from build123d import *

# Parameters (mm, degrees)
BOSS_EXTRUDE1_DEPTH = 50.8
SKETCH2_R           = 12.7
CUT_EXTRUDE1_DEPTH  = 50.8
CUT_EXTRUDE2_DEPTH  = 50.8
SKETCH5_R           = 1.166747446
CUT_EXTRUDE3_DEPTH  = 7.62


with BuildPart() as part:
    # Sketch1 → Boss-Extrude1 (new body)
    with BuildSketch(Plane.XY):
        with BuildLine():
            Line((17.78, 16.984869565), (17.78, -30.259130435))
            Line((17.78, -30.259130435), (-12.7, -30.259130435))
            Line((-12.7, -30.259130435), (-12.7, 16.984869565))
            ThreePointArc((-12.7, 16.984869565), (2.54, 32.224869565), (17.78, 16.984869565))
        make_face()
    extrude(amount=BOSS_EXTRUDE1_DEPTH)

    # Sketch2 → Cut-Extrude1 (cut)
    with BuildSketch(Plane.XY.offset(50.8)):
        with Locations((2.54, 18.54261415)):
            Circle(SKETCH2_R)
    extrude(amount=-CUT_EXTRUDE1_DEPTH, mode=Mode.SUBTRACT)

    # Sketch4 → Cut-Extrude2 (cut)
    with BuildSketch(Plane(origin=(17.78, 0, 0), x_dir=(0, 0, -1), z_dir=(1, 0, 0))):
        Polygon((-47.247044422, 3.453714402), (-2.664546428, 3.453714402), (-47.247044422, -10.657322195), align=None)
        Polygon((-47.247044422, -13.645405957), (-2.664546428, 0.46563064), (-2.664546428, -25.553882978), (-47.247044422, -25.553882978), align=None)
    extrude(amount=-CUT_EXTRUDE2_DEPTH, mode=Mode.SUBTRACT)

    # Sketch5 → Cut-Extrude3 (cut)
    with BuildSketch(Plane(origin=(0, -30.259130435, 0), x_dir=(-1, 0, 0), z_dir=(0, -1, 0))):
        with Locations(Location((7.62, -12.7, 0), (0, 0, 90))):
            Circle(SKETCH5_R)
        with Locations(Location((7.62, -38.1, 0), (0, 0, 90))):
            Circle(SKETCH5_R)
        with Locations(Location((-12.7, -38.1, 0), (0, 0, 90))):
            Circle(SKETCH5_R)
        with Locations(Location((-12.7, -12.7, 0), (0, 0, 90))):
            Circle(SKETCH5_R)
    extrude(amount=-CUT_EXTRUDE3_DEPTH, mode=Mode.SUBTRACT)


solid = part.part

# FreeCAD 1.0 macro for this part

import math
import FreeCAD as App
import Part
import Sketcher
Q = App.Units.Quantity


def add_polygon(sketch, points):
    """Adds a closed chain of lines whose ends are joined by coincident constraints."""
    first, n = sketch.GeometryCount, len(points)
    for a, b in zip(points, points[1:] + points[:1]):
        sketch.addGeometry(Part.LineSegment(App.Vector(*a, 0), App.Vector(*b, 0)), False)
    for i in range(n):
        sketch.addConstraint(Sketcher.Constraint("Coincident", first + i, 2, first + (i + 1) % n, 1))

doc = App.newDocument("Part")
body = doc.addObject("PartDesign::Body", "Body")

# Sketch on XY plane
sketch1 = body.newObject("Sketcher::SketchObject", "Sketch")
sketch1.AttachmentSupport = (doc.getObject("XY_Plane"), [""])
sketch1.MapMode = "FlatFace"
sketch1.addGeometry(Part.LineSegment(App.Vector(18, -30, 0), App.Vector(18, 17, 0)), False)
sketch1.addGeometry(Part.ArcOfCircle(Part.Circle(App.Vector(3, 17, 0), App.Vector(0, 0, 1), 15), math.radians(0), math.radians(180)), False)
sketch1.addGeometry(Part.LineSegment(App.Vector(-13, 17, 0), App.Vector(-13, -30, 0)), False)
sketch1.addGeometry(Part.LineSegment(App.Vector(-13, -30, 0), App.Vector(18, -30, 0)), False)
sketch1.addConstraint(Sketcher.Constraint("Tangent", 0, 2, 1, 1))
sketch1.addConstraint(Sketcher.Constraint("Tangent", 1, 2, 2, 1))
sketch1.addConstraint(Sketcher.Constraint("Coincident", 2, 2, 3, 1))
sketch1.addConstraint(Sketcher.Constraint("Coincident", 3, 2, 0, 1))
sketch1.addConstraint(Sketcher.Constraint("Vertical", 0))
sketch1.addConstraint(Sketcher.Constraint("Vertical", 2))
sketch1.addConstraint(Sketcher.Constraint("Horizontal", 3))
sketch1.addConstraint(Sketcher.Constraint("Radius", 1, Q("0.6 in")))
sketch1.addConstraint(Sketcher.Constraint("DistanceY", 0, 1, 0, 2, Q("1.86 in")))
sketch1.addConstraint(Sketcher.Constraint("DistanceX", -1, 1, 1, 3, Q("0.1 in")))
sketch1.addConstraint(Sketcher.Constraint("DistanceY", -1, 1, 1, 3, 16.98487))
pad1 = body.newObject("PartDesign::Pad", "Pad")
pad1.Profile = sketch1
pad1.Length = Q("2 in")

# Sketch on XY plane
sketch2 = body.newObject("Sketcher::SketchObject", "Sketch001")
sketch2.AttachmentSupport = (doc.getObject("XY_Plane"), [""])
sketch2.MapMode = "FlatFace"
sketch2.AttachmentOffset = App.Placement(App.Vector(0, 0, 2 * 25.4), App.Rotation())
sketch2.addGeometry(Part.Circle(App.Vector(3, 19, 0), App.Vector(0, 0, 1), 13), False)
sketch2.addConstraint(Sketcher.Constraint("Diameter", 0, Q("1 in")))
sketch2.addConstraint(Sketcher.Constraint("DistanceX", -1, 1, 0, 3, Q("0.1 in")))
sketch2.addConstraint(Sketcher.Constraint("DistanceY", -1, 1, 0, 3, 18.542614))
pocket1 = body.newObject("PartDesign::Pocket", "Pocket")
pocket1.Profile = sketch2
pocket1.Length = Q("2 in")

# Sketch on YZ plane
sketch3 = body.newObject("Sketcher::SketchObject", "Sketch002")
sketch3.AttachmentSupport = (doc.getObject("YZ_Plane"), [""])
sketch3.MapMode = "FlatFace"
sketch3.AttachmentOffset = App.Placement(App.Vector(0, 0, 0.7 * 25.4), App.Rotation())
add_polygon(sketch3, [(3, 3), (3, 47), (-11, 47)])  # lines 0-2
add_polygon(sketch3, [(0, 3), (-14, 47), (-26, 47), (-26, 3)])  # lines 3-6
sketch3.addConstraint(Sketcher.Constraint("Vertical", 0))
sketch3.addConstraint(Sketcher.Constraint("Horizontal", 1))
sketch3.addConstraint(Sketcher.Constraint("Horizontal", 4))
sketch3.addConstraint(Sketcher.Constraint("Vertical", 5))
sketch3.addConstraint(Sketcher.Constraint("Horizontal", 6))
sketch3.addConstraint(Sketcher.Constraint("Parallel", 2, 3))
sketch3.addConstraint(Sketcher.Constraint("Horizontal", 1, 2, 3, 2))
sketch3.addConstraint(Sketcher.Constraint("Horizontal", 2, 2, 5, 2))
sketch3.addConstraint(Sketcher.Constraint("DistanceX", 1, 2, 1, 1, 14.111037))
sketch3.addConstraint(Sketcher.Constraint("DistanceX", 4, 2, 4, 1, 11.908477))
sketch3.addConstraint(Sketcher.Constraint("DistanceY", 0, 1, 0, 2, 44.582498))
sketch3.addConstraint(Sketcher.Constraint("DistanceX", -1, 1, 6, 2, 0.465631))
sketch3.addConstraint(Sketcher.Constraint("DistanceX", 3, 2, 0, 2, 17.09912))
sketch3.addConstraint(Sketcher.Constraint("DistanceY", -1, 1, 0, 2, 47.247044))
pocket2 = body.newObject("PartDesign::Pocket", "Pocket001")
pocket2.Profile = sketch3
pocket2.Length = Q("2 in")

# Sketch on XZ plane
sketch4 = body.newObject("Sketcher::SketchObject", "Sketch003")
sketch4.AttachmentSupport = (doc.getObject("XZ_Plane"), [""])
sketch4.MapMode = "FlatFace"
sketch4.AttachmentOffset = App.Placement(App.Vector(0, 0, 30.25913), App.Rotation())
sketch4.addGeometry(Part.Circle(App.Vector(-7.6, 12.7, 0), App.Vector(0, 0, 1), 1.2), False)
sketch4.addGeometry(Part.Circle(App.Vector(-7.6, 38.1, 0), App.Vector(0, 0, 1), 1.2), False)
sketch4.addGeometry(Part.Circle(App.Vector(12.7, 38.1, 0), App.Vector(0, 0, 1), 1.2), False)
sketch4.addGeometry(Part.Circle(App.Vector(12.7, 12.7, 0), App.Vector(0, 0, 1), 1.2), False)
sketch4.addConstraint(Sketcher.Constraint("Equal", 0, 1))
sketch4.addConstraint(Sketcher.Constraint("Equal", 1, 2))
sketch4.addConstraint(Sketcher.Constraint("Equal", 2, 3))
sketch4.addConstraint(Sketcher.Constraint("Horizontal", 1, 3, 2, 3))
sketch4.addConstraint(Sketcher.Constraint("Horizontal", 0, 3, 3, 3))
sketch4.addConstraint(Sketcher.Constraint("Vertical", 0, 3, 1, 3))
sketch4.addConstraint(Sketcher.Constraint("Vertical", 2, 3, 3, 3))
sketch4.addConstraint(Sketcher.Constraint("DistanceY", 0, 3, 1, 3, Q("1 in")))
sketch4.addConstraint(Sketcher.Constraint("DistanceX", 0, 3, -1, 1, Q("0.3 in")))
sketch4.addConstraint(Sketcher.Constraint("DistanceY", -1, 1, 0, 3, Q("0.5 in")))
sketch4.addConstraint(Sketcher.Constraint("DistanceX", -1, 1, 2, 3, Q("0.5 in")))
sketch4.addConstraint(Sketcher.Constraint("Diameter", 0, 2.333495))
pocket3 = body.newObject("PartDesign::Pocket", "Pocket002")
pocket3.Profile = sketch4
pocket3.Length = Q("0.3 in")

doc.recompute()
